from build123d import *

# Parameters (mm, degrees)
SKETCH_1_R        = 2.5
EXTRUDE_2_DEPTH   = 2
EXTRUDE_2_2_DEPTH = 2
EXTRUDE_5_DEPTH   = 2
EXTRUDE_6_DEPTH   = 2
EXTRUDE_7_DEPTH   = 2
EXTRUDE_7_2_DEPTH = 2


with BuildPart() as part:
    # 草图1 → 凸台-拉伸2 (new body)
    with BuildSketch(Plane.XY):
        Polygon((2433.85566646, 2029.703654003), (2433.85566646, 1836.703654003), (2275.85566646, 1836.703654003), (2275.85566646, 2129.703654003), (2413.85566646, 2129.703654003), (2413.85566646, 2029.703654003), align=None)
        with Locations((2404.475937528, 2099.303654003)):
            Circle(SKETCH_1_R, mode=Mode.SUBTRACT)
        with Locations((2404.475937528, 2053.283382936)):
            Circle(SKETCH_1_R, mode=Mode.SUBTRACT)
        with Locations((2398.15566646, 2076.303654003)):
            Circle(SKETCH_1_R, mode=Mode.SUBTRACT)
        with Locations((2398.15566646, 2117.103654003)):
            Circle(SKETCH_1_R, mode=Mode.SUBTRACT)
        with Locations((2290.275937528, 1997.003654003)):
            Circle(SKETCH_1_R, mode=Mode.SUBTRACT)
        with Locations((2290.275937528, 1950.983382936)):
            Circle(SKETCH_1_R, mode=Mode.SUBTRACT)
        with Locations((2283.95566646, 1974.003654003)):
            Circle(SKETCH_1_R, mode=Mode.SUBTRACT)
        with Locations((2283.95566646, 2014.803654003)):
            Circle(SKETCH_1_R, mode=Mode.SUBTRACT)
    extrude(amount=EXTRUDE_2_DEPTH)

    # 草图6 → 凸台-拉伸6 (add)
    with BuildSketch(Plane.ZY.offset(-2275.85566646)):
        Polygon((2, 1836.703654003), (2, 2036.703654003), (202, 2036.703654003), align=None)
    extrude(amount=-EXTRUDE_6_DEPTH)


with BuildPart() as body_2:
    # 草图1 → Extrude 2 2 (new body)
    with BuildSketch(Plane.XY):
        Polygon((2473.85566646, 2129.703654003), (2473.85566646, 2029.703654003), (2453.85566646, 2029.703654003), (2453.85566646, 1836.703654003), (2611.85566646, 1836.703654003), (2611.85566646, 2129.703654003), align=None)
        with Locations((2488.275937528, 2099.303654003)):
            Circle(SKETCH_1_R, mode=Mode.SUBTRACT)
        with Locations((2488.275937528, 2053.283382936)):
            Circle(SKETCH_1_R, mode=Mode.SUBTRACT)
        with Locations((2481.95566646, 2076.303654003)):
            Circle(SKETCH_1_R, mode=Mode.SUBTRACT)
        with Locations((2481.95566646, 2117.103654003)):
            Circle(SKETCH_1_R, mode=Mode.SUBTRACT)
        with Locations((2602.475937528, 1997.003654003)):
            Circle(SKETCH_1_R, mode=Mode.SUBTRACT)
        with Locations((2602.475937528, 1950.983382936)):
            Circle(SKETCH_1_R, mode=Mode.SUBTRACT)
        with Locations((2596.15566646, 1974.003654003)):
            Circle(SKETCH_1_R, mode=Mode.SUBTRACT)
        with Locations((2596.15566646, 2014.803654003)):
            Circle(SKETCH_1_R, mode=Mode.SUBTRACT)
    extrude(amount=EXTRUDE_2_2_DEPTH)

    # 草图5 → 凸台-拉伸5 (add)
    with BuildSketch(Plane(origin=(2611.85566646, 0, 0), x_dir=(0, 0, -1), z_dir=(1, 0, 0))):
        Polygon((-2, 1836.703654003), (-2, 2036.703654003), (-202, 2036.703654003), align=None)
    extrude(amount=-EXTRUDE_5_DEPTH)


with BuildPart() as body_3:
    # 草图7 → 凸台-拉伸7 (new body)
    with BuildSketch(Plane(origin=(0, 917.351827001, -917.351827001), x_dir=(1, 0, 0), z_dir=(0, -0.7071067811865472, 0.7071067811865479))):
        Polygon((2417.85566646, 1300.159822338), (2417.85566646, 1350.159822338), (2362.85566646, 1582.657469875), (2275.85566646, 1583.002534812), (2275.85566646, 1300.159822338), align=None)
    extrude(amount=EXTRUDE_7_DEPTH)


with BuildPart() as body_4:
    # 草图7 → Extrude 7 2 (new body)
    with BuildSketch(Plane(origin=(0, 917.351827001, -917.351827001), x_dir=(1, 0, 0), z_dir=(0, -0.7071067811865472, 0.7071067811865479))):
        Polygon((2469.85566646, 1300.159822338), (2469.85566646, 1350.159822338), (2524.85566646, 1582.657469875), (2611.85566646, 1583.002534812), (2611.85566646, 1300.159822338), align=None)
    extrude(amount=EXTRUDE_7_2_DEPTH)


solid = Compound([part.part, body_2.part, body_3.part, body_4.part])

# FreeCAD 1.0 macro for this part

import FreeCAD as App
import Part
import Sketcher
from FreeCAD import Vector
Q = App.Units.Quantity

doc = App.newDocument("Part")
params = doc.addObject("Spreadsheet::Sheet", "Params")
for row, (alias, value) in enumerate([
    ("sketch1_diameter", "5 mm"),
    ("sketch1_width", "20 mm"),
    ("sketch1_width2", "138 mm"),
    ("sketch1_height", "193 mm"),
    ("sketch1_height2", "100 mm"),
    ("pad1_length", "2 mm"),
    ("sketch2_width", "200 mm"),
    ("pad2_length", "2 mm"),
    ("sketch3_diameter", "5 mm"),
    ("sketch3_width", "20 mm"),
    ("sketch3_width2", "158 mm"),
    ("sketch3_height", "100 mm"),
    ("sketch3_height2", "193 mm"),
    ("pad3_length", "2 mm"),
    ("sketch4_width", "200 mm"),
    ("pad4_length", "2 mm"),
    ("sketch5_width", "142 mm"),
    ("sketch5_height", "50 mm"),
    ("pad5_length", "2 mm"),
    ("sketch6_width", "142 mm"),
    ("sketch6_height", "50 mm"),
    ("pad6_length", "2 mm"),
], start=1):
    params.set(f"A{row}", alias)
    params.set(f"B{row}", "=" + value)
    params.setAlias(f"B{row}", alias)

body = doc.addObject("PartDesign::Body", "Body")

sketch1 = body.newObject("Sketcher::SketchObject", "Sketch")
sketch1.AttachmentSupport = (doc.getObject("XY_Plane"), [""])
sketch1.MapMode = "FlatFace"
sketch1.addGeometry(Part.LineSegment(Vector(2433.855666, 1836.703654, 0), Vector(2433.855666, 2029.703654, 0)), False)
sketch1.addGeometry(Part.LineSegment(Vector(2433.855666, 2029.703654, 0), Vector(2413.855666, 2029.703654, 0)), False)
sketch1.addGeometry(Part.LineSegment(Vector(2413.855666, 2029.703654, 0), Vector(2413.855666, 2129.703654, 0)), False)
sketch1.addGeometry(Part.LineSegment(Vector(2413.855666, 2129.703654, 0), Vector(2275.855666, 2129.703654, 0)), False)
sketch1.addGeometry(Part.LineSegment(Vector(2275.855666, 2129.703654, 0), Vector(2275.855666, 1836.703654, 0)), False)
sketch1.addGeometry(Part.LineSegment(Vector(2275.855666, 1836.703654, 0), Vector(2433.855666, 1836.703654, 0)), False)
sketch1.addGeometry(Part.Circle(Vector(2290.275938, 1950.983383, 0), Vector(0, 0, 1), 2.5), False)
sketch1.addGeometry(Part.Circle(Vector(2283.955666, 1974.003654, 0), Vector(0, 0, 1), 2.5), False)
sketch1.addGeometry(Part.Circle(Vector(2290.275938, 1997.003654, 0), Vector(0, 0, 1), 2.5), False)
sketch1.addGeometry(Part.Circle(Vector(2283.955666, 2014.803654, 0), Vector(0, 0, 1), 2.5), False)
sketch1.addGeometry(Part.Circle(Vector(2404.475938, 2053.283383, 0), Vector(0, 0, 1), 2.5), False)
sketch1.addGeometry(Part.Circle(Vector(2398.155666, 2076.303654, 0), Vector(0, 0, 1), 2.5), False)
sketch1.addGeometry(Part.Circle(Vector(2404.475938, 2099.303654, 0), Vector(0, 0, 1), 2.5), False)
sketch1.addGeometry(Part.Circle(Vector(2398.155666, 2117.103654, 0), Vector(0, 0, 1), 2.5), False)
sketch1.addConstraint(Sketcher.Constraint("Coincident", 0, 2, 1, 1))
sketch1.addConstraint(Sketcher.Constraint("Coincident", 1, 2, 2, 1))
sketch1.addConstraint(Sketcher.Constraint("Coincident", 2, 2, 3, 1))
sketch1.addConstraint(Sketcher.Constraint("Coincident", 3, 2, 4, 1))
sketch1.addConstraint(Sketcher.Constraint("Coincident", 4, 2, 5, 1))
sketch1.addConstraint(Sketcher.Constraint("Coincident", 5, 2, 0, 1))
sketch1.addConstraint(Sketcher.Constraint("Vertical", 0))
sketch1.addConstraint(Sketcher.Constraint("Horizontal", 1))
sketch1.addConstraint(Sketcher.Constraint("Vertical", 2))
sketch1.addConstraint(Sketcher.Constraint("Horizontal", 3))
sketch1.addConstraint(Sketcher.Constraint("Vertical", 4))
sketch1.addConstraint(Sketcher.Constraint("Horizontal", 5))
sketch1.addConstraint(Sketcher.Constraint("Equal", 6, 7))
sketch1.addConstraint(Sketcher.Constraint("Equal", 7, 8))
sketch1.addConstraint(Sketcher.Constraint("Equal", 8, 9))
sketch1.addConstraint(Sketcher.Constraint("Equal", 9, 10))
sketch1.addConstraint(Sketcher.Constraint("Equal", 10, 11))
sketch1.addConstraint(Sketcher.Constraint("Equal", 11, 12))
sketch1.addConstraint(Sketcher.Constraint("Equal", 12, 13))
sketch1.addConstraint(Sketcher.Constraint("Vertical", 6, 3, 8, 3))
sketch1.addConstraint(Sketcher.Constraint("Vertical", 7, 3, 9, 3))
sketch1.addConstraint(Sketcher.Constraint("Vertical", 10, 3, 12, 3))
sketch1.addConstraint(Sketcher.Constraint("Vertical", 11, 3, 13, 3))
sketch1.addConstraint(Sketcher.Constraint("Diameter", 6, Q("5 mm")))
sketch1.addConstraint(Sketcher.Constraint("DistanceX", 1, 2, 1, 1, Q("20 mm")))
sketch1.addConstraint(Sketcher.Constraint("DistanceX", 3, 2, 3, 1, Q("138 mm")))
sketch1.addConstraint(Sketcher.Constraint("DistanceY", 0, 1, 0, 2, Q("193 mm")))
sketch1.addConstraint(Sketcher.Constraint("DistanceY", 2, 1, 2, 2, Q("100 mm")))
sketch1.addConstraint(Sketcher.Constraint("DistanceY", 7, 3, 8, 3, Q("23 mm")))
sketch1.addConstraint(Sketcher.Constraint("DistanceY", 11, 3, 12, 3, Q("23 mm")))
sketch1.addConstraint(Sketcher.Constraint("DistanceY", 8, 3, 9, 3, Q("17.8 mm")))
sketch1.addConstraint(Sketcher.Constraint("DistanceX", 8, 3, 10, 3, Q("114.2 mm")))
sketch1.addConstraint(Sketcher.Constraint("DistanceY", 6, 3, 10, 3, Q("102.3 mm")))
sketch1.addConstraint(Sketcher.Constraint("DistanceX", 9, 3, 11, 3, Q("114.2 mm")))
sketch1.addConstraint(Sketcher.Constraint("DistanceY", 9, 3, 11, 3, Q("61.5 mm")))
sketch1.addConstraint(Sketcher.Constraint("DistanceY", 12, 3, 13, 3, Q("17.8 mm")))
sketch1.addConstraint(Sketcher.Constraint("DistanceX", 11, 3, 0, 2, Q("35.7 mm")))
sketch1.addConstraint(Sketcher.Constraint("DistanceY", 0, 2, 11, 3, Q("46.6 mm")))
sketch1.addConstraint(Sketcher.Constraint("DistanceX", 7, 3, 6, 3, Q("6.320271 mm")))
sketch1.addConstraint(Sketcher.Constraint("DistanceY", 6, 3, 7, 3, Q("23.020271 mm")))
sketch1.addConstraint(Sketcher.Constraint("DistanceX", -1, 1, 6, 3, Q("2290.275938 mm")))
sketch1.addConstraint(Sketcher.Constraint("DistanceY", -1, 1, 6, 3, Q("1950.983383 mm")))
sketch1.setExpression("Constraints[23]", "Params.sketch1_diameter")
sketch1.setExpression("Constraints[24]", "Params.sketch1_width")
sketch1.setExpression("Constraints[25]", "Params.sketch1_width2")
sketch1.setExpression("Constraints[26]", "Params.sketch1_height")
sketch1.setExpression("Constraints[27]", "Params.sketch1_height2")
pad1 = body.newObject("PartDesign::Pad", "Pad")
pad1.Profile = sketch1
pad1.setExpression("Length", "Params.pad1_length")

sketch2 = body.newObject("Sketcher::SketchObject", "Sketch001")
sketch2.AttachmentSupport = (doc.getObject("YZ_Plane"), [""])
sketch2.MapMode = "FlatFace"
sketch2.AttachmentOffset = App.Placement(Vector(0, 0, 2275.855666), App.Rotation())
sketch2.addGeometry(Part.LineSegment(Vector(2037, 2, 0), Vector(1837, 2, 0)), False)
sketch2.addGeometry(Part.LineSegment(Vector(1837, 2, 0), Vector(2037, 202, 0)), False)
sketch2.addGeometry(Part.LineSegment(Vector(2037, 202, 0), Vector(2037, 2, 0)), False)
sketch2.addConstraint(Sketcher.Constraint("Coincident", 0, 2, 1, 1))
sketch2.addConstraint(Sketcher.Constraint("Coincident", 1, 2, 2, 1))
sketch2.addConstraint(Sketcher.Constraint("Coincident", 2, 2, 0, 1))
sketch2.addConstraint(Sketcher.Constraint("Horizontal", 0))
sketch2.addConstraint(Sketcher.Constraint("Vertical", 2))
sketch2.addConstraint(Sketcher.Constraint("Equal", 0, 2))
sketch2.addConstraint(Sketcher.Constraint("DistanceX", 0, 2, 0, 1, Q("200 mm")))
sketch2.addConstraint(Sketcher.Constraint("DistanceY", -1, 1, 0, 2, Q("2 mm")))
sketch2.addConstraint(Sketcher.Constraint("DistanceX", -1, 1, 0, 2, Q("1836.703654 mm")))
sketch2.setExpression("Constraints[6]", "Params.sketch2_width")
pad2 = body.newObject("PartDesign::Pad", "Pad001")
pad2.Profile = sketch2
pad2.setExpression("Length", "Params.pad2_length")
body2 = doc.addObject("PartDesign::Body", "Body001")

sketch3 = body2.newObject("Sketcher::SketchObject", "Sketch002")
sketch3.AttachmentSupport = (doc.getObject("XY_Plane001"), [""])
sketch3.MapMode = "FlatFace"
sketch3.addGeometry(Part.LineSegment(Vector(2473.855666, 2129.703654, 0), Vector(2473.855666, 2029.703654, 0)), False)
sketch3.addGeometry(Part.LineSegment(Vector(2473.855666, 2029.703654, 0), Vector(2453.855666, 2029.703654, 0)), False)
sketch3.addGeometry(Part.LineSegment(Vector(2453.855666, 2029.703654, 0), Vector(2453.855666, 1836.703654, 0)), False)
sketch3.addGeometry(Part.LineSegment(Vector(2453.855666, 1836.703654, 0), Vector(2611.855666, 1836.703654, 0)), False)
sketch3.addGeometry(Part.LineSegment(Vector(2611.855666, 1836.703654, 0), Vector(2611.855666, 2129.703654, 0)), False)
sketch3.addGeometry(Part.LineSegment(Vector(2611.855666, 2129.703654, 0), Vector(2473.855666, 2129.703654, 0)), False)
sketch3.addGeometry(Part.Circle(Vector(2602.475938, 1950.983383, 0), Vector(0, 0, 1), 2.5), False)
sketch3.addGeometry(Part.Circle(Vector(2596.155666, 1974.003654, 0), Vector(0, 0, 1), 2.5), False)
sketch3.addGeometry(Part.Circle(Vector(2602.475938, 1997.003654, 0), Vector(0, 0, 1), 2.5), False)
sketch3.addGeometry(Part.Circle(Vector(2596.155666, 2014.803654, 0), Vector(0, 0, 1), 2.5), False)
sketch3.addGeometry(Part.Circle(Vector(2488.275938, 2053.283383, 0), Vector(0, 0, 1), 2.5), False)
sketch3.addGeometry(Part.Circle(Vector(2481.955666, 2076.303654, 0), Vector(0, 0, 1), 2.5), False)
sketch3.addGeometry(Part.Circle(Vector(2488.275938, 2099.303654, 0), Vector(0, 0, 1), 2.5), False)
sketch3.addGeometry(Part.Circle(Vector(2481.955666, 2117.103654, 0), Vector(0, 0, 1), 2.5), False)
sketch3.addConstraint(Sketcher.Constraint("Coincident", 0, 2, 1, 1))
sketch3.addConstraint(Sketcher.Constraint("Coincident", 1, 2, 2, 1))
sketch3.addConstraint(Sketcher.Constraint("Coincident", 2, 2, 3, 1))
sketch3.addConstraint(Sketcher.Constraint("Coincident", 3, 2, 4, 1))
sketch3.addConstraint(Sketcher.Constraint("Coincident", 4, 2, 5, 1))
sketch3.addConstraint(Sketcher.Constraint("Coincident", 5, 2, 0, 1))
sketch3.addConstraint(Sketcher.Constraint("Vertical", 0))
sketch3.addConstraint(Sketcher.Constraint("Horizontal", 1))
sketch3.addConstraint(Sketcher.Constraint("Vertical", 2))
sketch3.addConstraint(Sketcher.Constraint("Horizontal", 3))
sketch3.addConstraint(Sketcher.Constraint("Vertical", 4))
sketch3.addConstraint(Sketcher.Constraint("Horizontal", 5))
sketch3.addConstraint(Sketcher.Constraint("Equal", 6, 7))
sketch3.addConstraint(Sketcher.Constraint("Equal", 7, 8))
sketch3.addConstraint(Sketcher.Constraint("Equal", 8, 9))
sketch3.addConstraint(Sketcher.Constraint("Equal", 9, 10))
sketch3.addConstraint(Sketcher.Constraint("Equal", 10, 11))
sketch3.addConstraint(Sketcher.Constraint("Equal", 11, 12))
sketch3.addConstraint(Sketcher.Constraint("Equal", 12, 13))
sketch3.addConstraint(Sketcher.Constraint("Vertical", 6, 3, 8, 3))
sketch3.addConstraint(Sketcher.Constraint("Vertical", 7, 3, 9, 3))
sketch3.addConstraint(Sketcher.Constraint("Vertical", 10, 3, 12, 3))
sketch3.addConstraint(Sketcher.Constraint("Vertical", 11, 3, 13, 3))
sketch3.addConstraint(Sketcher.Constraint("Diameter", 6, Q("5 mm")))
sketch3.addConstraint(Sketcher.Constraint("DistanceX", 1, 2, 1, 1, Q("20 mm")))
sketch3.addConstraint(Sketcher.Constraint("DistanceX", 3, 1, 3, 2, Q("158 mm")))
sketch3.addConstraint(Sketcher.Constraint("DistanceY", 0, 2, 0, 1, Q("100 mm")))
sketch3.addConstraint(Sketcher.Constraint("DistanceY", 2, 2, 2, 1, Q("193 mm")))
sketch3.addConstraint(Sketcher.Constraint("DistanceY", 7, 3, 8, 3, Q("23 mm")))
sketch3.addConstraint(Sketcher.Constraint("DistanceY", 11, 3, 12, 3, Q("23 mm")))
sketch3.addConstraint(Sketcher.Constraint("DistanceY", 8, 3, 9, 3, Q("17.8 mm")))
sketch3.addConstraint(Sketcher.Constraint("DistanceX", 10, 3, 8, 3, Q("114.2 mm")))
sketch3.addConstraint(Sketcher.Constraint("DistanceY", 6, 3, 10, 3, Q("102.3 mm")))
sketch3.addConstraint(Sketcher.Constraint("DistanceX", 11, 3, 9, 3, Q("114.2 mm")))
sketch3.addConstraint(Sketcher.Constraint("DistanceY", 9, 3, 11, 3, Q("61.5 mm")))
sketch3.addConstraint(Sketcher.Constraint("DistanceY", 12, 3, 13, 3, Q("17.8 mm")))
sketch3.addConstraint(Sketcher.Constraint("DistanceX", 0, 2, 11, 3, Q("8.1 mm")))
sketch3.addConstraint(Sketcher.Constraint("DistanceY", 0, 2, 11, 3, Q("46.6 mm")))
sketch3.addConstraint(Sketcher.Constraint("DistanceX", 7, 3, 6, 3, Q("6.320271 mm")))
sketch3.addConstraint(Sketcher.Constraint("DistanceY", 6, 3, 7, 3, Q("23.020271 mm")))
sketch3.addConstraint(Sketcher.Constraint("DistanceX", -1, 1, 6, 3, Q("2602.475938 mm")))
sketch3.addConstraint(Sketcher.Constraint("DistanceY", -1, 1, 6, 3, Q("1950.983383 mm")))
sketch3.setExpression("Constraints[23]", "Params.sketch3_diameter")
sketch3.setExpression("Constraints[24]", "Params.sketch3_width")
sketch3.setExpression("Constraints[25]", "Params.sketch3_width2")
sketch3.setExpression("Constraints[26]", "Params.sketch3_height")
sketch3.setExpression("Constraints[27]", "Params.sketch3_height2")
pad3 = body2.newObject("PartDesign::Pad", "Pad002")
pad3.Profile = sketch3
pad3.setExpression("Length", "Params.pad3_length")

sketch4 = body2.newObject("Sketcher::SketchObject", "Sketch003")
sketch4.AttachmentSupport = (doc.getObject("YZ_Plane001"), [""])
sketch4.MapMode = "FlatFace"
sketch4.AttachmentOffset = App.Placement(Vector(0, 0, 2611.855666), App.Rotation())
sketch4.addGeometry(Part.LineSegment(Vector(1837, 2, 0), Vector(2037, 2, 0)), False)
sketch4.addGeometry(Part.LineSegment(Vector(2037, 2, 0), Vector(2037, 202, 0)), False)
sketch4.addGeometry(Part.LineSegment(Vector(2037, 202, 0), Vector(1837, 2, 0)), False)
sketch4.addConstraint(Sketcher.Constraint("Coincident", 0, 2, 1, 1))
sketch4.addConstraint(Sketcher.Constraint("Coincident", 1, 2, 2, 1))
sketch4.addConstraint(Sketcher.Constraint("Coincident", 2, 2, 0, 1))
sketch4.addConstraint(Sketcher.Constraint("Horizontal", 0))
sketch4.addConstraint(Sketcher.Constraint("Vertical", 1))
sketch4.addConstraint(Sketcher.Constraint("Equal", 0, 1))
sketch4.addConstraint(Sketcher.Constraint("DistanceX", 0, 1, 0, 2, Q("200 mm")))
sketch4.addConstraint(Sketcher.Constraint("DistanceY", -1, 1, 0, 2, Q("2 mm")))
sketch4.addConstraint(Sketcher.Constraint("DistanceX", -1, 1, 0, 2, Q("2036.703654 mm")))
sketch4.setExpression("Constraints[6]", "Params.sketch4_width")
pad4 = body2.newObject("PartDesign::Pad", "Pad003")
pad4.Profile = sketch4
pad4.setExpression("Length", "Params.pad4_length")
pad4.Reversed = True
body3 = doc.addObject("PartDesign::Body", "Body002")

sketch5 = body3.newObject("Sketcher::SketchObject", "Sketch004")
sketch5.Placement = App.Placement(Vector(0, 917.351827, -917.351827), App.Rotation(Vector(1, 0, 0), Vector(0, 0.707106781, 0.707106781), Vector(0, -0.707106781, 0.707106781), "ZXY"))
sketch5.addGeometry(Part.LineSegment(Vector(2418, 1300, 0), Vector(2418, 1350, 0)), False)
sketch5.addGeometry(Part.LineSegment(Vector(2418, 1350, 0), Vector(2363, 1583, 0)), False)
sketch5.addGeometry(Part.LineSegment(Vector(2363, 1583, 0), Vector(2276, 1583, 0)), False)
sketch5.addGeometry(Part.LineSegment(Vector(2276, 1583, 0), Vector(2276, 1300, 0)), False)
sketch5.addGeometry(Part.LineSegment(Vector(2276, 1300, 0), Vector(2418, 1300, 0)), False)
sketch5.addConstraint(Sketcher.Constraint("Coincident", 0, 2, 1, 1))
sketch5.addConstraint(Sketcher.Constraint("Coincident", 1, 2, 2, 1))
sketch5.addConstraint(Sketcher.Constraint("Coincident", 2, 2, 3, 1))
sketch5.addConstraint(Sketcher.Constraint("Coincident", 3, 2, 4, 1))
sketch5.addConstraint(Sketcher.Constraint("Coincident", 4, 2, 0, 1))
sketch5.addConstraint(Sketcher.Constraint("Vertical", 0))
sketch5.addConstraint(Sketcher.Constraint("Vertical", 3))
sketch5.addConstraint(Sketcher.Constraint("Horizontal", 4))
sketch5.addConstraint(Sketcher.Constraint("DistanceX", 4, 1, 4, 2, Q("142 mm")))
sketch5.addConstraint(Sketcher.Constraint("DistanceY", 0, 1, 0, 2, Q("50 mm")))
sketch5.addConstraint(Sketcher.Constraint("DistanceX", 1, 2, 0, 2, Q("55 mm")))
sketch5.addConstraint(Sketcher.Constraint("DistanceY", 3, 2, 3, 1, Q("282.842712 mm")))
sketch5.addConstraint(Sketcher.Constraint("DistanceY", -1, 1, 0, 2, Q("1350.159822 mm")))
sketch5.addConstraint(Sketcher.Constraint("DistanceY", -1, 1, 1, 2, Q("1582.657469 mm")))
sketch5.addConstraint(Sketcher.Constraint("DistanceX", -1, 1, 0, 2, Q("2417.855666 mm")))
sketch5.setExpression("Constraints[8]", "Params.sketch5_width")
sketch5.setExpression("Constraints[9]", "Params.sketch5_height")
pad5 = body3.newObject("PartDesign::Pad", "Pad004")
pad5.Profile = sketch5
pad5.setExpression("Length", "Params.pad5_length")
body4 = doc.addObject("PartDesign::Body", "Body003")

sketch6 = body4.newObject("Sketcher::SketchObject", "Sketch005")
sketch6.Placement = App.Placement(Vector(0, 917.351827, -917.351827), App.Rotation(Vector(1, 0, 0), Vector(0, 0.707106781, 0.707106781), Vector(0, -0.707106781, 0.707106781), "ZXY"))
sketch6.addGeometry(Part.LineSegment(Vector(2470, 1350, 0), Vector(2470, 1300, 0)), False)
sketch6.addGeometry(Part.LineSegment(Vector(2470, 1300, 0), Vector(2612, 1300, 0)), False)
sketch6.addGeometry(Part.LineSegment(Vector(2612, 1300, 0), Vector(2612, 1583, 0)), False)
sketch6.addGeometry(Part.LineSegment(Vector(2612, 1583, 0), Vector(2525, 1583, 0)), False)
sketch6.addGeometry(Part.LineSegment(Vector(2525, 1583, 0), Vector(2470, 1350, 0)), False)
sketch6.addConstraint(Sketcher.Constraint("Coincident", 0, 2, 1, 1))
sketch6.addConstraint(Sketcher.Constraint("Coincident", 1, 2, 2, 1))
sketch6.addConstraint(Sketcher.Constraint("Coincident", 2, 2, 3, 1))
sketch6.addConstraint(Sketcher.Constraint("Coincident", 3, 2, 4, 1))
sketch6.addConstraint(Sketcher.Constraint("Coincident", 4, 2, 0, 1))
sketch6.addConstraint(Sketcher.Constraint("Vertical", 0))
sketch6.addConstraint(Sketcher.Constraint("Horizontal", 1))
sketch6.addConstraint(Sketcher.Constraint("Vertical", 2))
sketch6.addConstraint(Sketcher.Constraint("DistanceX", 1, 1, 1, 2, Q("142 mm")))
sketch6.addConstraint(Sketcher.Constraint("DistanceY", 0, 2, 0, 1, Q("50 mm")))
sketch6.addConstraint(Sketcher.Constraint("DistanceX", 3, 2, 2, 2, Q("87 mm")))
sketch6.addConstraint(Sketcher.Constraint("DistanceY", 2, 1, 2, 2, Q("282.842712 mm")))
sketch6.addConstraint(Sketcher.Constraint("DistanceY", -1, 1, 0, 2, Q("1300.159822 mm")))
sketch6.addConstraint(Sketcher.Constraint("DistanceY", -1, 1, 3, 2, Q("1582.657469 mm")))
sketch6.addConstraint(Sketcher.Constraint("DistanceX", -1, 1, 0, 2, Q("2469.855666 mm")))
sketch6.setExpression("Constraints[8]", "Params.sketch6_width")
sketch6.setExpression("Constraints[9]", "Params.sketch6_height")
pad6 = body4.newObject("PartDesign::Pad", "Pad005")
pad6.Profile = sketch6
pad6.setExpression("Length", "Params.pad6_length")

doc.recompute()
